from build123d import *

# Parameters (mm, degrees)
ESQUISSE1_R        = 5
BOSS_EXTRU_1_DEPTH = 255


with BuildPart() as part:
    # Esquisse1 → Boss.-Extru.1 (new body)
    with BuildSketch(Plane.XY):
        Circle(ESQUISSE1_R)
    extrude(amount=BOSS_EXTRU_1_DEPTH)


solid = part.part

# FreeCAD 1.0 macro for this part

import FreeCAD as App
import Part
import Sketcher

V = App.Vector

doc = App.newDocument("Part")
body = doc.addObject("PartDesign::Body", "Body")

sketch1 = body.newObject("Sketcher::SketchObject", "Sketch")
sketch1.AttachmentSupport = (doc.getObject("XY_Plane"), [""])
sketch1.MapMode = "FlatFace"
sketch1.addGeometry(Part.Circle(V(0, 0, 0), V(0, 0, 1), 5), False)
sketch1.addConstraint(Sketcher.Constraint("Coincident", 0, 3, -1, 1))
sketch1.addConstraint(Sketcher.Constraint("Diameter", 0, 10.0))
pad1 = body.newObject("PartDesign::Pad", "Pad")
pad1.Profile = sketch1
pad1.Length = 255

doc.recompute()
